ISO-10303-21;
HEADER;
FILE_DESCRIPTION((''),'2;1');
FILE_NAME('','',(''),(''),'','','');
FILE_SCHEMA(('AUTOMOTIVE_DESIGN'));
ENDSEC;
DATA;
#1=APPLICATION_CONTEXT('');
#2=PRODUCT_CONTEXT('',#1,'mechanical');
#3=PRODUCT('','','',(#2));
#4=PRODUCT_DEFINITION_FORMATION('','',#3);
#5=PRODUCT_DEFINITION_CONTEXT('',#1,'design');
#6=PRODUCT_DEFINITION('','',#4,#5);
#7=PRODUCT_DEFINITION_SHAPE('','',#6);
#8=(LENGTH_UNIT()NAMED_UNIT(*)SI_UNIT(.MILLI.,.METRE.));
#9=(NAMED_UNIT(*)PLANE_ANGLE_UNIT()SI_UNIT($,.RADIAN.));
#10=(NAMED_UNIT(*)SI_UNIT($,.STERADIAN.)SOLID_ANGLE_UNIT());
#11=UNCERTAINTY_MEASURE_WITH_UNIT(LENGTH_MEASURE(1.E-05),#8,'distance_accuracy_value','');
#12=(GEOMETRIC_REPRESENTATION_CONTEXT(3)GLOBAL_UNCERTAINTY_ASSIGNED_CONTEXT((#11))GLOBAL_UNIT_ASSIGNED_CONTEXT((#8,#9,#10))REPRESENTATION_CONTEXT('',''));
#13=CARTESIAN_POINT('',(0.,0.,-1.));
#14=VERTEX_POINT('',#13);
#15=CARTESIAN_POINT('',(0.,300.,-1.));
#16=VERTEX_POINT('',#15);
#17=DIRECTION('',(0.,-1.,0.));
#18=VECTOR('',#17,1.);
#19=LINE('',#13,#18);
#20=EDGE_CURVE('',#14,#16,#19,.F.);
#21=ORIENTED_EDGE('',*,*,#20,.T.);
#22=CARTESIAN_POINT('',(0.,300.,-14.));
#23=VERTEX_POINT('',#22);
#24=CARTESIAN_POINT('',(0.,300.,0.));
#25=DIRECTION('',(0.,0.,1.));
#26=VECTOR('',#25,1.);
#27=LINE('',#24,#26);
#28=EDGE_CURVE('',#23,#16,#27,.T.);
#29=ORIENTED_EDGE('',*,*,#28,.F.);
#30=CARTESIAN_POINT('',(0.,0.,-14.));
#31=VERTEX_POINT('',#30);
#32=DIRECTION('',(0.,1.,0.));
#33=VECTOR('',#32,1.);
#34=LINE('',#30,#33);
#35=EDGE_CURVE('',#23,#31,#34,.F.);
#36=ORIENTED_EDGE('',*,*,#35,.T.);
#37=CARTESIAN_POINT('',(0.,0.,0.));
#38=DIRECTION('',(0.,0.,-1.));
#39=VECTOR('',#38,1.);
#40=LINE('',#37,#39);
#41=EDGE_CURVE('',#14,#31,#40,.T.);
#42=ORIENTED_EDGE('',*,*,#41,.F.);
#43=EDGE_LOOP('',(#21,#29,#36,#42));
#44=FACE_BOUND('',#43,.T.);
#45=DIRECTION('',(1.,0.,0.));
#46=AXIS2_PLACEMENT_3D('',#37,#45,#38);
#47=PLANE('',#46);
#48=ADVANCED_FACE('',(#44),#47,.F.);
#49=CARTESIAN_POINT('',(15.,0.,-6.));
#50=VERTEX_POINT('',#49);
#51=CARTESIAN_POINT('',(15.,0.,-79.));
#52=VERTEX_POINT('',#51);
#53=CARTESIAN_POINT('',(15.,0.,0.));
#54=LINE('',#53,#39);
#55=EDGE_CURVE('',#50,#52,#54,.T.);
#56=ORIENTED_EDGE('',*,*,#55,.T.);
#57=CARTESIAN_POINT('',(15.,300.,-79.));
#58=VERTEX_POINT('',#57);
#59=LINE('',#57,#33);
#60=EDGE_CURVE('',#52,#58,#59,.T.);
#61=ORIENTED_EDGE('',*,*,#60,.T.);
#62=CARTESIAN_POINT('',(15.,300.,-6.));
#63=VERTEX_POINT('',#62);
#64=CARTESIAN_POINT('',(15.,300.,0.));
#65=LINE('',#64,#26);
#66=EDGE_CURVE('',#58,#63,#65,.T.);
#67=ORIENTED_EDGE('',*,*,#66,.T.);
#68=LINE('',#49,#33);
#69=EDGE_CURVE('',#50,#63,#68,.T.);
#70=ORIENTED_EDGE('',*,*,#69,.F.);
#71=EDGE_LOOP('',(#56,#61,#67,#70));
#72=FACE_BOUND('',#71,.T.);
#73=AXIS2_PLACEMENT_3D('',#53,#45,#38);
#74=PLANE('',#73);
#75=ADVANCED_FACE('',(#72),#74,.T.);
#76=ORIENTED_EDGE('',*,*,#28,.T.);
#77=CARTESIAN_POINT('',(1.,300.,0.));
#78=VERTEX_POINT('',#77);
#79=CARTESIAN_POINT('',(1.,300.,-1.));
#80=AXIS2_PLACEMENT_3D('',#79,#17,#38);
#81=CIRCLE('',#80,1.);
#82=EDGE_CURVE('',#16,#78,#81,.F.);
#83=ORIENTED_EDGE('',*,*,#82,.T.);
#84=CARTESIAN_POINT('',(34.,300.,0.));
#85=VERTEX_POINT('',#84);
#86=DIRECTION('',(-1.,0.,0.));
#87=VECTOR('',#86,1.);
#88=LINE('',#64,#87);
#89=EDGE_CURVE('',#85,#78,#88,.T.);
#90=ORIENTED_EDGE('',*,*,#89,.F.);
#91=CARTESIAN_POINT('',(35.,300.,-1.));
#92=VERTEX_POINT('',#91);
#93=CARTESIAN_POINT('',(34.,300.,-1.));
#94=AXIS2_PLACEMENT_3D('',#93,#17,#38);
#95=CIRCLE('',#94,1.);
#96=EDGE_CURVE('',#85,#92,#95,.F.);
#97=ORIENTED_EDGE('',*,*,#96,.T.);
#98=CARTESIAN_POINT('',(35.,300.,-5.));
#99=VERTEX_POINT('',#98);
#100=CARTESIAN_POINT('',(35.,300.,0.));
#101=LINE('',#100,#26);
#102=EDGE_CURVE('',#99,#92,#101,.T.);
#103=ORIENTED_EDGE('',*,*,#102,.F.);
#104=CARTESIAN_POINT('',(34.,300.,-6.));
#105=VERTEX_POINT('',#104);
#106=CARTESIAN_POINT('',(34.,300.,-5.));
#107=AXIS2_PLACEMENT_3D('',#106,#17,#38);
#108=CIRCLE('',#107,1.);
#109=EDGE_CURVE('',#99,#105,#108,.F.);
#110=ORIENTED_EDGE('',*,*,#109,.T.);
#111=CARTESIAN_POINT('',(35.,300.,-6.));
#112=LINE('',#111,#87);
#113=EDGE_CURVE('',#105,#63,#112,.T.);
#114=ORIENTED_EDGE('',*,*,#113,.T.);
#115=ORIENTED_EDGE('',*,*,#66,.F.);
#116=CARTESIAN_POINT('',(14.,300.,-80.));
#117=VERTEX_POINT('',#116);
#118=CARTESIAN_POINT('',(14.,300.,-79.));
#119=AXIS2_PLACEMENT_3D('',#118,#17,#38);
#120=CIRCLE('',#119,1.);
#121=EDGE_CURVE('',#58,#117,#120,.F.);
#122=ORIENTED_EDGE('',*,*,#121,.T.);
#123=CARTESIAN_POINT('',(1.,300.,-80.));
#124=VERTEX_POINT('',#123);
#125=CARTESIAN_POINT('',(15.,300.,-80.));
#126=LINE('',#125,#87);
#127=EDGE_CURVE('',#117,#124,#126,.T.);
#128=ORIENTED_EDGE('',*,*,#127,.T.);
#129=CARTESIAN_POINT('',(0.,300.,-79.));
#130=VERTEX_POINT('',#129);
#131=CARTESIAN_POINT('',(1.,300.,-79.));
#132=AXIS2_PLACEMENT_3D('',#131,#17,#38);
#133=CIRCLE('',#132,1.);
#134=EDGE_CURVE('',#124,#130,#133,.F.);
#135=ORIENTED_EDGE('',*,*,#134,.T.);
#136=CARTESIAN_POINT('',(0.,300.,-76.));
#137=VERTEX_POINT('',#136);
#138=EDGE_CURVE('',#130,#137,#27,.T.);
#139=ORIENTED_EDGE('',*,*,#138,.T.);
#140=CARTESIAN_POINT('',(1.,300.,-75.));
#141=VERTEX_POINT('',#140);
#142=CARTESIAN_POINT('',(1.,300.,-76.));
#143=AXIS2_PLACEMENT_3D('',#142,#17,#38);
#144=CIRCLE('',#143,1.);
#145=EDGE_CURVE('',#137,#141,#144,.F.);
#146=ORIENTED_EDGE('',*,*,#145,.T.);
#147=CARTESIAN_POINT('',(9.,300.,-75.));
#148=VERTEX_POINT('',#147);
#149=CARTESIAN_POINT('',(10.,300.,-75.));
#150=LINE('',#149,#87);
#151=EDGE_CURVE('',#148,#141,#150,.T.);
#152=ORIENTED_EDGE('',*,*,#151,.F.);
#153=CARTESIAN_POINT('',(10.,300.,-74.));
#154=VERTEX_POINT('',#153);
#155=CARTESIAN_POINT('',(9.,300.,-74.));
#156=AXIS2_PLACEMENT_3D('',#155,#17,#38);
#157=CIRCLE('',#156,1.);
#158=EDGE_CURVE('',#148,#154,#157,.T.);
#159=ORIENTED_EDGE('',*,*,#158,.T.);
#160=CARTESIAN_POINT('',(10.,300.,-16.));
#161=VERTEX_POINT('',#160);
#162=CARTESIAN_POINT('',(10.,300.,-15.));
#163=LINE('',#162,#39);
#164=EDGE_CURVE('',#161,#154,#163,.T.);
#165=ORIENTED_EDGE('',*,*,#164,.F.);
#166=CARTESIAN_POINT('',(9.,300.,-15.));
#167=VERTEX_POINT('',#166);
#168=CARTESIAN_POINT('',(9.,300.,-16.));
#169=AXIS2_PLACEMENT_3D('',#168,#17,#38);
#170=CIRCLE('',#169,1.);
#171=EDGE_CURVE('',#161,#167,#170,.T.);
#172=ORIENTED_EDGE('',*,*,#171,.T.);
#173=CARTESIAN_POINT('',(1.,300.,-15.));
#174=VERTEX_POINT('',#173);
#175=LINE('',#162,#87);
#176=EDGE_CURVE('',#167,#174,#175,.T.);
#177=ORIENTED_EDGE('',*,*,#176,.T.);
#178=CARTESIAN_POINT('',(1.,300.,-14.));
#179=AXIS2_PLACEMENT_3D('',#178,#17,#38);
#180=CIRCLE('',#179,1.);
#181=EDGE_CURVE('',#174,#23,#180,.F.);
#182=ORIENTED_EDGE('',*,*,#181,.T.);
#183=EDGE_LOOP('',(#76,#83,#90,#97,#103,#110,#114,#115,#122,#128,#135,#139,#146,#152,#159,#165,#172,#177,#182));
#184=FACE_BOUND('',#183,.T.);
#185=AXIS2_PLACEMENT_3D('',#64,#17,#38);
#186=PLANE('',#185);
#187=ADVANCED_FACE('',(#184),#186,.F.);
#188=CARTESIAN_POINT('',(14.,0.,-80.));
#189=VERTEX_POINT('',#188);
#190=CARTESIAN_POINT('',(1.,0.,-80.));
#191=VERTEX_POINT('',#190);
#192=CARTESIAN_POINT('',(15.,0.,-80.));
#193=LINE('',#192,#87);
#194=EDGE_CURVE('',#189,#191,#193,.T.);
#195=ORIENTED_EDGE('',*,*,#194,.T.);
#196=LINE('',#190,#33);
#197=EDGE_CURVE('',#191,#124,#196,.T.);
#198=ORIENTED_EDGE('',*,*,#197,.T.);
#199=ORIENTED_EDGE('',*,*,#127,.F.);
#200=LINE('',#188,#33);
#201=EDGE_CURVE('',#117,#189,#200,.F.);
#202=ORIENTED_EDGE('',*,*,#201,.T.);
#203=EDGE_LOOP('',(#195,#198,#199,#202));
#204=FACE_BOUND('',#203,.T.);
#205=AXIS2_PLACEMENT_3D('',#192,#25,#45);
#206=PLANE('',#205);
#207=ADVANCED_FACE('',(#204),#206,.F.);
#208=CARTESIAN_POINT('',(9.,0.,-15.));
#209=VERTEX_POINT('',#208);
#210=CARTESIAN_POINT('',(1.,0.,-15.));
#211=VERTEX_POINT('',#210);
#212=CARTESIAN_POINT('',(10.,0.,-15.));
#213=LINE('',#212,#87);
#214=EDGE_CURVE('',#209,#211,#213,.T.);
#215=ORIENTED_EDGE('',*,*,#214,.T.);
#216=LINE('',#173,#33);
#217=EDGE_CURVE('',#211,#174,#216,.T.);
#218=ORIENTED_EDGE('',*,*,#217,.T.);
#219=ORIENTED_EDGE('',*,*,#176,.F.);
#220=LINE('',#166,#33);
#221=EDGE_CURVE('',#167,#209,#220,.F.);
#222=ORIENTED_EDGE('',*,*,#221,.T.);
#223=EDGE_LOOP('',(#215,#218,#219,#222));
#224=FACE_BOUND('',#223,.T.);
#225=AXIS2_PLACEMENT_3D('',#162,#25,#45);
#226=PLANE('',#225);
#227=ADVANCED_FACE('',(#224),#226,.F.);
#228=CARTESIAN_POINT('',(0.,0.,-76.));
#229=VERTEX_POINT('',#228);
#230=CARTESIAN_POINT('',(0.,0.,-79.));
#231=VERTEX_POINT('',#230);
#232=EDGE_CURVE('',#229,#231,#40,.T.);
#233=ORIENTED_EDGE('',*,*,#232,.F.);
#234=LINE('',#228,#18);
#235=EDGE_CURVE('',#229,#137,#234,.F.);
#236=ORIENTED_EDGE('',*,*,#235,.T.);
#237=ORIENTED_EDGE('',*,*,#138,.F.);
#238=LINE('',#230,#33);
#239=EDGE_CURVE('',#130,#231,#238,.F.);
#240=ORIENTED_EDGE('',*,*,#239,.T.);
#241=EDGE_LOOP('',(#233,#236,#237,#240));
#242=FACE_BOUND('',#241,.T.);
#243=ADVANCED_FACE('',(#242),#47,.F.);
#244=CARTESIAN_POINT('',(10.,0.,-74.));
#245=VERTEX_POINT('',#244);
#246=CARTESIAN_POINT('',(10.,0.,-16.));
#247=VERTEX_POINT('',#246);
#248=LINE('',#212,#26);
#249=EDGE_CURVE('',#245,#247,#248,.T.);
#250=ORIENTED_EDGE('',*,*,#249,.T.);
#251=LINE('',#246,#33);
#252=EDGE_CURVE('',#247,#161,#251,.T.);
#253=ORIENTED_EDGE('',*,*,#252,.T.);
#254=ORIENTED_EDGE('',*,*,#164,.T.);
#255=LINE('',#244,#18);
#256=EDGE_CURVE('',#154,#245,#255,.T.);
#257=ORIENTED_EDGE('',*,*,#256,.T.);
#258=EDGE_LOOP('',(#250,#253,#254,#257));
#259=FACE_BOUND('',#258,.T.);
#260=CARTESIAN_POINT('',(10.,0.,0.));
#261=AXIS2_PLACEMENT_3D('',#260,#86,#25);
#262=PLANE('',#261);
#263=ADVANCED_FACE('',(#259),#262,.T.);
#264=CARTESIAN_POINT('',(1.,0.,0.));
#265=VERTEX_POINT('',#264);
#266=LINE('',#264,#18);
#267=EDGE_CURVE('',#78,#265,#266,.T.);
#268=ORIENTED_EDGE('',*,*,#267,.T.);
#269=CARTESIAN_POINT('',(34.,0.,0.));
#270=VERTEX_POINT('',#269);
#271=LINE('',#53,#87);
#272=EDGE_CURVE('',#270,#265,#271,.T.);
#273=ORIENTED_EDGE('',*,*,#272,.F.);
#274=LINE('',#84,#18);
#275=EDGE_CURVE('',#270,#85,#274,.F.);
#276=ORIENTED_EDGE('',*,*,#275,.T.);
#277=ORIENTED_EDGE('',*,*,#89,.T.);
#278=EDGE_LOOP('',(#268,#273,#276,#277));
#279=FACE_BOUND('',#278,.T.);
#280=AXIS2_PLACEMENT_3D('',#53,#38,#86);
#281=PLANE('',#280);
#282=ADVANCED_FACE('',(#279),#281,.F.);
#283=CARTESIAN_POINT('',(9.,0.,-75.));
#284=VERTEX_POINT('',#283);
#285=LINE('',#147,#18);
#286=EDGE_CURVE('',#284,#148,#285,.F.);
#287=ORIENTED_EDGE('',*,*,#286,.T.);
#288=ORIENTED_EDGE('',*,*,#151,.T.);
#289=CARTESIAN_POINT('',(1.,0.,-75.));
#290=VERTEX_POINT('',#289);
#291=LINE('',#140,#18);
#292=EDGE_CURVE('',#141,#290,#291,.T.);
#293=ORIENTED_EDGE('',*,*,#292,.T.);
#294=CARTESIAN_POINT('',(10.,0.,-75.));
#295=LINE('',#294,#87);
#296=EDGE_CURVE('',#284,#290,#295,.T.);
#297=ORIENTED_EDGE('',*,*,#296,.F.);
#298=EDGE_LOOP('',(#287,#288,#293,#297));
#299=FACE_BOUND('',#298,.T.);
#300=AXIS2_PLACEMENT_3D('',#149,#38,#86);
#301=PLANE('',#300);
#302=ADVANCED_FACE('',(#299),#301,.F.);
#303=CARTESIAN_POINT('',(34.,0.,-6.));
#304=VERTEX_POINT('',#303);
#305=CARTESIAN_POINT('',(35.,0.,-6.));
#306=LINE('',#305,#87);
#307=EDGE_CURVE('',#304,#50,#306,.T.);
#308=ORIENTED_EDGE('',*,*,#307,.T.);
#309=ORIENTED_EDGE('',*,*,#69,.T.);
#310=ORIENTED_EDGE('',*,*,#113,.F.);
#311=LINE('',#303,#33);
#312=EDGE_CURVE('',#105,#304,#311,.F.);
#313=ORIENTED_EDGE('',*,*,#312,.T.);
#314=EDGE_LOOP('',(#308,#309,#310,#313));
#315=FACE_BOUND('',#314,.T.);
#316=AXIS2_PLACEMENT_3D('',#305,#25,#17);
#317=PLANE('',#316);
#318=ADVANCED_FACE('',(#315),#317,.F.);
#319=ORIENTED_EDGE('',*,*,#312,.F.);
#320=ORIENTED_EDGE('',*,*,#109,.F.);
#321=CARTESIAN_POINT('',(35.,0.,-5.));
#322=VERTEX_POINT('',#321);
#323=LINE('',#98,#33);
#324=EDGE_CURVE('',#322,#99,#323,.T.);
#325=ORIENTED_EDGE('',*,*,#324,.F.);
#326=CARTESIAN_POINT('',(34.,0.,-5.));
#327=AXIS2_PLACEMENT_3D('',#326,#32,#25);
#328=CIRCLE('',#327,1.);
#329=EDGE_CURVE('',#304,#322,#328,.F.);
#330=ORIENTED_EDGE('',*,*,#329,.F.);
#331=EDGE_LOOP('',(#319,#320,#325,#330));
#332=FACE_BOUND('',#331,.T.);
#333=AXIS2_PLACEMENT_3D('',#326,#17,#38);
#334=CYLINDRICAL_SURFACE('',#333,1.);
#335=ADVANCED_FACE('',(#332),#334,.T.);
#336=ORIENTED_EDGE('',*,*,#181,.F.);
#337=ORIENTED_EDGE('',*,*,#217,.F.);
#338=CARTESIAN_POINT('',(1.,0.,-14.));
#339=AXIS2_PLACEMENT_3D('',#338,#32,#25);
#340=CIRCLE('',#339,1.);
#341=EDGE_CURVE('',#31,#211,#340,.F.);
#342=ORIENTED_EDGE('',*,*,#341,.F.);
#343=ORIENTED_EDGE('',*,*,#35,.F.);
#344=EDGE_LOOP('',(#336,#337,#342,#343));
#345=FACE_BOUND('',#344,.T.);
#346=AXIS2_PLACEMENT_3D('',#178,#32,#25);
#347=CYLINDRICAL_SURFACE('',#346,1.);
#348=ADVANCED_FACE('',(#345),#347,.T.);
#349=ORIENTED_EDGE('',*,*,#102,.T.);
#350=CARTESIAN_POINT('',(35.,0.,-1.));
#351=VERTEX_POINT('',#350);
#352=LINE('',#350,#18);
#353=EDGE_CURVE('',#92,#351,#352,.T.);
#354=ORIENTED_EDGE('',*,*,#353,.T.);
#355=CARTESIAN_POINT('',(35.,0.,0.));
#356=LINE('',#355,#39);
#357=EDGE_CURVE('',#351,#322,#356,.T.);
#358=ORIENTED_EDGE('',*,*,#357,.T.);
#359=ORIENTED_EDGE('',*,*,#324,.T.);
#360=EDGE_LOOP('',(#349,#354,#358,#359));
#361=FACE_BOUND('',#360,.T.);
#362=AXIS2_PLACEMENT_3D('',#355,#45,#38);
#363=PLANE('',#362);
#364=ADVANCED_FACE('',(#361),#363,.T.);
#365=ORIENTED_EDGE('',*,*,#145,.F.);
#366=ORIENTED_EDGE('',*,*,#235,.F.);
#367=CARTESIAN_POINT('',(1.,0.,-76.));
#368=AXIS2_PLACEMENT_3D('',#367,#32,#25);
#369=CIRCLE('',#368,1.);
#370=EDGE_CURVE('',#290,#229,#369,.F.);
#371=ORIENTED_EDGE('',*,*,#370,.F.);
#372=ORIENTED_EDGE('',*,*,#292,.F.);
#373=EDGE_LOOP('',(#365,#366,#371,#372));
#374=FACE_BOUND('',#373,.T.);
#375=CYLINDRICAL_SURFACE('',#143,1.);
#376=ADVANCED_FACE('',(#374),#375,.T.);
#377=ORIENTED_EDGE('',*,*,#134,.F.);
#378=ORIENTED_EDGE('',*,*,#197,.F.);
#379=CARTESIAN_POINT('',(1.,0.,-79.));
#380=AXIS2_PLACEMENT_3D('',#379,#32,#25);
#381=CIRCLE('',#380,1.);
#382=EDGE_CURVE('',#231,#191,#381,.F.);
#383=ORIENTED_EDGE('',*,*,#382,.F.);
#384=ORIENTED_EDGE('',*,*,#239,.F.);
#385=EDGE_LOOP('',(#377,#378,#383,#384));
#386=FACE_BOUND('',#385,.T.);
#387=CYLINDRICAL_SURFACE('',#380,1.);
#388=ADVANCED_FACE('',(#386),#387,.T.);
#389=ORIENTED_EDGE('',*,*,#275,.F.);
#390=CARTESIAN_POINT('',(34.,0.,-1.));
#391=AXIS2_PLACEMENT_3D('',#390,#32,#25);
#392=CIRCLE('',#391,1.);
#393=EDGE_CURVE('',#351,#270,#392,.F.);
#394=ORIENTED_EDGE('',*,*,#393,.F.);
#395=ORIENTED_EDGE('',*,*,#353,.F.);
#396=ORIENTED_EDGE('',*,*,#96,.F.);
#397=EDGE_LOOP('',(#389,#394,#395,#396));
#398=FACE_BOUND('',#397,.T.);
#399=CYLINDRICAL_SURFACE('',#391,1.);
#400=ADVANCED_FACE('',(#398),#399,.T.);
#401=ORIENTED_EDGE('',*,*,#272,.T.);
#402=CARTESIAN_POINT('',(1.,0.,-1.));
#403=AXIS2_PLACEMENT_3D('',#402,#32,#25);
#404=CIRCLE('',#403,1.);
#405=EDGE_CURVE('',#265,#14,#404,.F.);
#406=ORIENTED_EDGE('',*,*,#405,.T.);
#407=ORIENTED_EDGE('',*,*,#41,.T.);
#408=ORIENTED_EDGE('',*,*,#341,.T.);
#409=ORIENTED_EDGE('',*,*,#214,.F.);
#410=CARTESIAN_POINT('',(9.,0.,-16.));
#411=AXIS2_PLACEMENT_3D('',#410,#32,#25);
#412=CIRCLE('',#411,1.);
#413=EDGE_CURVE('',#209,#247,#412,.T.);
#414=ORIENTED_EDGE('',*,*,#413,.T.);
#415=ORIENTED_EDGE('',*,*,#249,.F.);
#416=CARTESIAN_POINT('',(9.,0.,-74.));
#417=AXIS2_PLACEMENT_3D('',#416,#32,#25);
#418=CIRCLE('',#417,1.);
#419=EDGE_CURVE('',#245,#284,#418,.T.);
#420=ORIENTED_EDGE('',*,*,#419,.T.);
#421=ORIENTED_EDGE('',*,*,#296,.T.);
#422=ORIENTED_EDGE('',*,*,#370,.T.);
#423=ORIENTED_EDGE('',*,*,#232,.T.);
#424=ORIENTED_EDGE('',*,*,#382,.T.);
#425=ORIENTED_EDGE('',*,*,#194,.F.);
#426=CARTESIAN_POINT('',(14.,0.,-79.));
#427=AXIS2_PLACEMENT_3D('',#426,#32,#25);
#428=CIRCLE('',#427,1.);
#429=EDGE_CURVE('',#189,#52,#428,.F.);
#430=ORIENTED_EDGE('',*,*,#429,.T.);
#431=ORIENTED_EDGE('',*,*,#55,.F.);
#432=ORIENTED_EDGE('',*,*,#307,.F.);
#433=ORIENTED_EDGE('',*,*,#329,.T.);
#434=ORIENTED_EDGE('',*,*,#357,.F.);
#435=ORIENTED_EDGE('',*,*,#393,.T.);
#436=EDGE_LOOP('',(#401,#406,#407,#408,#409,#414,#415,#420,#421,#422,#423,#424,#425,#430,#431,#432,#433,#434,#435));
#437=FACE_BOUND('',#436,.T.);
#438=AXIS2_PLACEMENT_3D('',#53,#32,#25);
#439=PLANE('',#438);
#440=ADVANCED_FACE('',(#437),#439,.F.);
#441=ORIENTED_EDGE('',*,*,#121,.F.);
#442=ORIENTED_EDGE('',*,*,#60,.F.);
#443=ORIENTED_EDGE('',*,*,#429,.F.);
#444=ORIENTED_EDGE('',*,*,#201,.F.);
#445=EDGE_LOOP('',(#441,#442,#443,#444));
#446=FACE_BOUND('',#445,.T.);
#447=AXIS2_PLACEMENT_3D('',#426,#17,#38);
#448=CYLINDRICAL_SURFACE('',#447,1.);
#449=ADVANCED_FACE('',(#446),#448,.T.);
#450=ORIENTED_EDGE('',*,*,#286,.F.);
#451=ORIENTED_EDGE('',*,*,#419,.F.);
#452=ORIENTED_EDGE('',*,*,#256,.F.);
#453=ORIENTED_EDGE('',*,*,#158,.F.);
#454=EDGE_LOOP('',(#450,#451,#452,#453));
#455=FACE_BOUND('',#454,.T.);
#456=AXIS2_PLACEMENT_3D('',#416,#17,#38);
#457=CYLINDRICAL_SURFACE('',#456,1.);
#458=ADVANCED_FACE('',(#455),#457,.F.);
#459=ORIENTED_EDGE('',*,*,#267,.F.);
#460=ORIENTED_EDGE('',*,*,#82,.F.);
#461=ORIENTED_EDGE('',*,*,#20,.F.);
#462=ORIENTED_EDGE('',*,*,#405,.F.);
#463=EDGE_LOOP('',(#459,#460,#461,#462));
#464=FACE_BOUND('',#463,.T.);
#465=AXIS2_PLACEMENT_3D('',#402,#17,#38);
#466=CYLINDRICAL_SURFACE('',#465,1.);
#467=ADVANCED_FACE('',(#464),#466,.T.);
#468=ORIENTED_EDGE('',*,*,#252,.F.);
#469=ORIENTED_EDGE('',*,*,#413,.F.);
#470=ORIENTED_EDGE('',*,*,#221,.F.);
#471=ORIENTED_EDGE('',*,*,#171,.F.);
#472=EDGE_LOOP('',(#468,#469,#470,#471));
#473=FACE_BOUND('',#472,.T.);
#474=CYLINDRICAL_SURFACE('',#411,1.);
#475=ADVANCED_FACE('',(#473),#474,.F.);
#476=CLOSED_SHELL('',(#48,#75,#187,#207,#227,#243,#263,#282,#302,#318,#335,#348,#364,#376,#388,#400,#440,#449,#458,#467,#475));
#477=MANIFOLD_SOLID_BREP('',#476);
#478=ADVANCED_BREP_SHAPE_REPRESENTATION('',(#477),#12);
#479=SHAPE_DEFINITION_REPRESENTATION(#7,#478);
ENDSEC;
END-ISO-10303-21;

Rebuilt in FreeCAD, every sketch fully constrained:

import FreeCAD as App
import Part
import Sketcher
from FreeCAD import Vector
Q = App.Units.Quantity


def edges_at(feature, points):
    """Names of the edges that pass closest to the given points."""
    edges = feature.Shape.Edges
    near = lambda p: min(range(len(edges)), key=lambda i: edges[i].distToShape(Part.Vertex(*p))[0])
    return sorted({f"Edge{near(p) + 1}" for p in points})

doc = App.newDocument("Part")
body = doc.addObject("PartDesign::Body", "Body")

# Sketch on YZ plane
sketch1 = body.newObject("Sketcher::SketchObject", "Sketch")
sketch1.AttachmentSupport = (doc.getObject("YZ_Plane"), [""])
sketch1.MapMode = "FlatFace"
sketch1.addGeometry([
    Part.LineSegment(Vector(0, 0, 0), Vector(0, -80, 0)),
    Part.LineSegment(Vector(0, -80, 0), Vector(300, -80, 0)),
    Part.LineSegment(Vector(300, -80, 0), Vector(300, 0, 0)),
    Part.LineSegment(Vector(300, 0, 0), Vector(0, 0, 0)),
], False)
sketch1.addConstraint([
    Sketcher.Constraint("Coincident", 0, 2, 1, 1),
    Sketcher.Constraint("Coincident", 1, 2, 2, 1),
    Sketcher.Constraint("Coincident", 2, 2, 3, 1),
    Sketcher.Constraint("Coincident", 3, 2, 0, 1),
    Sketcher.Constraint("Vertical", 0),
    Sketcher.Constraint("Horizontal", 1),
    Sketcher.Constraint("Vertical", 2),
    Sketcher.Constraint("Horizontal", 3),
    Sketcher.Constraint("Coincident", 3, 2, -1, 1),
    Sketcher.Constraint("DistanceX", 1, 1, 1, 2, Q("300 mm")),
    Sketcher.Constraint("DistanceY", 0, 2, 0, 1, Q("80 mm")),
])
pad1 = body.newObject("PartDesign::Pad", "Pad")
pad1.Profile = sketch1
pad1.Length = 15

# Sketch on YZ plane
sketch2 = body.newObject("Sketcher::SketchObject", "Sketch001")
sketch2.AttachmentSupport = (doc.getObject("YZ_Plane"), [""])
sketch2.MapMode = "FlatFace"
sketch2.AttachmentOffset = App.Placement(Vector(0, 0, 15), App.Rotation())
sketch2.addGeometry([
    Part.LineSegment(Vector(0, 0, 0), Vector(0, -6, 0)),
    Part.LineSegment(Vector(0, -6, 0), Vector(300, -6, 0)),
    Part.LineSegment(Vector(300, -6, 0), Vector(300, 0, 0)),
    Part.LineSegment(Vector(300, 0, 0), Vector(0, 0, 0)),
], False)
sketch2.addConstraint([
    Sketcher.Constraint("Coincident", 0, 2, 1, 1),
    Sketcher.Constraint("Coincident", 1, 2, 2, 1),
    Sketcher.Constraint("Coincident", 2, 2, 3, 1),
    Sketcher.Constraint("Coincident", 3, 2, 0, 1),
    Sketcher.Constraint("Vertical", 0),
    Sketcher.Constraint("Horizontal", 1),
    Sketcher.Constraint("Vertical", 2),
    Sketcher.Constraint("Horizontal", 3),
    Sketcher.Constraint("Coincident", 3, 2, -1, 1),
    Sketcher.Constraint("DistanceX", 1, 1, 1, 2, Q("300 mm")),
    Sketcher.Constraint("DistanceY", 0, 2, 0, 1, Q("6 mm")),
])
pad2 = body.newObject("PartDesign::Pad", "Pad001")
pad2.Profile = sketch2
pad2.Length = 20

# Sketch on YZ plane
sketch3 = body.newObject("Sketcher::SketchObject", "Sketch002")
sketch3.AttachmentSupport = (doc.getObject("YZ_Plane"), [""])
sketch3.MapMode = "FlatFace"
sketch3.addGeometry([
    Part.LineSegment(Vector(300, -15, 0), Vector(300, -75, 0)),
    Part.LineSegment(Vector(300, -75, 0), Vector(0, -75, 0)),
    Part.LineSegment(Vector(0, -75, 0), Vector(0, -15, 0)),
    Part.LineSegment(Vector(0, -15, 0), Vector(300, -15, 0)),
], False)
sketch3.addConstraint([
    Sketcher.Constraint("Coincident", 0, 2, 1, 1),
    Sketcher.Constraint("Coincident", 1, 2, 2, 1),
    Sketcher.Constraint("Coincident", 2, 2, 3, 1),
    Sketcher.Constraint("Coincident", 3, 2, 0, 1),
    Sketcher.Constraint("Vertical", 0),
    Sketcher.Constraint("Horizontal", 1),
    Sketcher.Constraint("Vertical", 2),
    Sketcher.Constraint("Horizontal", 3),
    Sketcher.Constraint("PointOnObject", 1, 2, -2),
    Sketcher.Constraint("DistanceX", 1, 2, 1, 1, Q("300 mm")),
    Sketcher.Constraint("DistanceY", 0, 2, 0, 1, Q("60 mm")),
    Sketcher.Constraint("DistanceY", 0, 2, -1, 1, Q("75 mm")),
])
pocket1 = body.newObject("PartDesign::Pocket", "Pocket")
pocket1.Profile = sketch3
pocket1.Length = 10
pocket1.Reversed = True
doc.recompute()

fillet = body.newObject("PartDesign::Fillet", "Fillet")
fillet.Base = (pocket1, edges_at(pocket1, [
    (35, 150, -6),
    (35, 150, 0),
    (10, 150, -15),
    (10, 150, -75),
    (0, 150, -75),
    (0, 150, -15),
    (0, 150, 0),
    (0, 150, -80),
    (15, 150, -80),
]))
fillet.Radius = 1

doc.recompute()
